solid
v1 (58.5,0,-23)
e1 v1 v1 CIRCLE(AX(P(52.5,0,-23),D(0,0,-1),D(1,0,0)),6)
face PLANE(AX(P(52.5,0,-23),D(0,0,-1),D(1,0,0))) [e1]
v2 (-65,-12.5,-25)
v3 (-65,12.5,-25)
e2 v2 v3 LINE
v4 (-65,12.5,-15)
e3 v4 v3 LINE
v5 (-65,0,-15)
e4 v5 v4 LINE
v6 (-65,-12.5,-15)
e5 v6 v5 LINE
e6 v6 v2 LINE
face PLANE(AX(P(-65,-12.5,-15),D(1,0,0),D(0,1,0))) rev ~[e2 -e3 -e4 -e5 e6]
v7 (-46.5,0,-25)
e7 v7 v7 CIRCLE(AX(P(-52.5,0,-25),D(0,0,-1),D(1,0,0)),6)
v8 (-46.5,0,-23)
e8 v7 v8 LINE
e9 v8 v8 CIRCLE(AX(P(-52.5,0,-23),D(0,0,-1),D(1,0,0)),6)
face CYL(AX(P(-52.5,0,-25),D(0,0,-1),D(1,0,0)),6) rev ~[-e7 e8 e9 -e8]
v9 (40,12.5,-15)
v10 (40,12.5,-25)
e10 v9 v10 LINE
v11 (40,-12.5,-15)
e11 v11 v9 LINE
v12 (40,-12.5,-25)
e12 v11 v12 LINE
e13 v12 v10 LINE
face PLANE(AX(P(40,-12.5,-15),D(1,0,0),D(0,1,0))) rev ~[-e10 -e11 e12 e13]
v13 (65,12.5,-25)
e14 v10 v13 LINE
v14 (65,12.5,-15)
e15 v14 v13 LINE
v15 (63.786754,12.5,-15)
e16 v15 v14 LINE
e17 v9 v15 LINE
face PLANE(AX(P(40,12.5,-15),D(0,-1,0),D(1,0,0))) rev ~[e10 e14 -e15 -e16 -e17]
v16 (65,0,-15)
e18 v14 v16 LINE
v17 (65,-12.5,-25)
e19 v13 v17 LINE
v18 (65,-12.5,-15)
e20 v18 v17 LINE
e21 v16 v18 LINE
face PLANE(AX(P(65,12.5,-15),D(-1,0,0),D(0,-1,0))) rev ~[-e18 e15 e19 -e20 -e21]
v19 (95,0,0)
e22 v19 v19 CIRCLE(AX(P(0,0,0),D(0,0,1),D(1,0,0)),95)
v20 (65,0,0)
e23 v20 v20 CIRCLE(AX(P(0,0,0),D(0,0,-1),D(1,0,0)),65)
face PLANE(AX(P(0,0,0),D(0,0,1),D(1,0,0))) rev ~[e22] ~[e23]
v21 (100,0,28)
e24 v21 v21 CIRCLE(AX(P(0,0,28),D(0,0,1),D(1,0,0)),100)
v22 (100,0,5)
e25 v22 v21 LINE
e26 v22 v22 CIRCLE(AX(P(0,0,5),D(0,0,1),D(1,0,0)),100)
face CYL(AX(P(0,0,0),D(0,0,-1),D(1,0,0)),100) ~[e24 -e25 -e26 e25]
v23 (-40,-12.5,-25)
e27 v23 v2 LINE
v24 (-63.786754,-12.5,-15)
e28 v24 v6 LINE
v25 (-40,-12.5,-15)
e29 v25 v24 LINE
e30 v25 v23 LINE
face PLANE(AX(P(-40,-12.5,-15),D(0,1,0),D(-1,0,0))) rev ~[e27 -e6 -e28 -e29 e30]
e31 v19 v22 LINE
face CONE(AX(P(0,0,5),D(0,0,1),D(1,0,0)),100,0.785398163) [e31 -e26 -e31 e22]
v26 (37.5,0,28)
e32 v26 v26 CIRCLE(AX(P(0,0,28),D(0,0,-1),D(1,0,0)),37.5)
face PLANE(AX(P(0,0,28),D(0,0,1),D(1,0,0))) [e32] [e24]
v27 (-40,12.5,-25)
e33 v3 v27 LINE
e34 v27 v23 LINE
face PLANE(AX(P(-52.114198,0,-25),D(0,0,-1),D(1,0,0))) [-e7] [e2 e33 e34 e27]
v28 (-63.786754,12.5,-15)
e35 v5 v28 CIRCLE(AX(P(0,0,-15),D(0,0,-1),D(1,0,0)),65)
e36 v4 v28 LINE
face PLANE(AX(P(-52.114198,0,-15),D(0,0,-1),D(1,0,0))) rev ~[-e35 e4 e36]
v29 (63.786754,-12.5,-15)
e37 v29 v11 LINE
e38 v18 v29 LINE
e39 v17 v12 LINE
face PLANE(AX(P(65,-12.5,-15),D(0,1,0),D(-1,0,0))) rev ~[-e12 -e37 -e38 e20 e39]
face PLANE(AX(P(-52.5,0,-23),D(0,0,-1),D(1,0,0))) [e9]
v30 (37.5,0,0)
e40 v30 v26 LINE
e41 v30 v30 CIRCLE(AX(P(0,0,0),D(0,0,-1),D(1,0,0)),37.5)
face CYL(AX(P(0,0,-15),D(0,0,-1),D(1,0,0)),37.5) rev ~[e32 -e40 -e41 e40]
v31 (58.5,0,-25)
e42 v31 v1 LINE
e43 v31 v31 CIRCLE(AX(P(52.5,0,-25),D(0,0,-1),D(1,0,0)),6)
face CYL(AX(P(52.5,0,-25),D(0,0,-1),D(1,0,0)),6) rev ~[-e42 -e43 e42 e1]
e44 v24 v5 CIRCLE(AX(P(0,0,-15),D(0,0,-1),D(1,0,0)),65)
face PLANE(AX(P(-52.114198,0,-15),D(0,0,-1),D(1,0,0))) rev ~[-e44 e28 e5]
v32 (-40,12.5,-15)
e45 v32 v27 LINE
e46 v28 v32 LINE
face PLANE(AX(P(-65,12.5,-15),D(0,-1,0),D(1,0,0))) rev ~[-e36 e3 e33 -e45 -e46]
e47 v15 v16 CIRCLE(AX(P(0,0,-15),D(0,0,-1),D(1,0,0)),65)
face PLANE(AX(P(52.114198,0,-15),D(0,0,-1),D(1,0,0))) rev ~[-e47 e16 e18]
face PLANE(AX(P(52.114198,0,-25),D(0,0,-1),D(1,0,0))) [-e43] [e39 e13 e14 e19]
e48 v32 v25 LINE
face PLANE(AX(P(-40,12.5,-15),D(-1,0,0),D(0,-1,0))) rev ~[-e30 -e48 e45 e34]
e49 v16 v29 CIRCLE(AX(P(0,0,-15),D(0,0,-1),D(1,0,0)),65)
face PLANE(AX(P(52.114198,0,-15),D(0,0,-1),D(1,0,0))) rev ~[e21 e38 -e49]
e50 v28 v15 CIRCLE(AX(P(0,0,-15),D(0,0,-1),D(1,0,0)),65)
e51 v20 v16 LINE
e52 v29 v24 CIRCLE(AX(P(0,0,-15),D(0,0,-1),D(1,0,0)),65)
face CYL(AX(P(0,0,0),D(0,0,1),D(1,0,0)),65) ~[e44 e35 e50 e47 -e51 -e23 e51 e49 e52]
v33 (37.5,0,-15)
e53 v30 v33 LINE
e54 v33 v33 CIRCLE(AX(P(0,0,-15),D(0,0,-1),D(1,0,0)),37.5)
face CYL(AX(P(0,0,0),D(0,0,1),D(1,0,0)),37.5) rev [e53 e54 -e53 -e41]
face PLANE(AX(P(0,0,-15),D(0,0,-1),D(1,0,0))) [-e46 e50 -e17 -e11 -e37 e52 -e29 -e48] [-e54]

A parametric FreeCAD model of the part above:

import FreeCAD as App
import Part
import Sketcher
from FreeCAD import Vector
Q = App.Units.Quantity


def edges_at(feature, points):
    """Names of the edges that pass closest to the given points."""
    edges = feature.Shape.Edges
    near = lambda p: min(range(len(edges)), key=lambda i: edges[i].distToShape(Part.Vertex(*p))[0])
    return sorted({f"Edge{near(p) + 1}" for p in points})

doc = App.newDocument("Part")
params = doc.addObject("Spreadsheet::Sheet", "Params")
for row, (alias, value) in enumerate([
    ("sketch1_diameter", "200 mm"),
    ("pad1_length", "28 mm"),
    ("sketch2_diameter", "130 mm"),
    ("sketch2_diameter2", "75 mm"),
    ("pad2_length", "15 mm"),
    ("sketch3_width", "25 mm"),
    ("pad3_length", "10 mm"),
    ("sketch4_diameter", "12 mm"),
    ("pocket1_length", "2 mm"),
    ("sketch5_diameter", "75 mm"),
    ("pocket2_length", "50 mm"),
    ("chamfer_size", "5 mm"),
], start=1):
    params.set(f"A{row}", alias)
    params.set(f"B{row}", "=" + value)
    params.setAlias(f"B{row}", alias)

body = doc.addObject("PartDesign::Body", "Body")

sketch1 = body.newObject("Sketcher::SketchObject", "Sketch")
sketch1.AttachmentSupport = (doc.getObject("XY_Plane"), [""])
sketch1.MapMode = "FlatFace"
sketch1.addGeometry(Part.Circle(Vector(0, 0, 0), Vector(0, 0, 1), 100), False)
sketch1.addConstraint(Sketcher.Constraint("Coincident", 0, 3, -1, 1))
sketch1.addConstraint(Sketcher.Constraint("Diameter", 0, Q("200 mm")))
sketch1.setExpression("Constraints[1]", "Params.sketch1_diameter")
pad1 = body.newObject("PartDesign::Pad", "Pad")
pad1.Profile = sketch1
pad1.setExpression("Length", "Params.pad1_length")

sketch2 = body.newObject("Sketcher::SketchObject", "Sketch001")
sketch2.AttachmentSupport = (doc.getObject("XY_Plane"), [""])
sketch2.MapMode = "FlatFace"
sketch2.addGeometry(Part.Circle(Vector(0, 0, 0), Vector(0, 0, 1), 65), False)
sketch2.addGeometry(Part.Circle(Vector(0, 0, 0), Vector(0, 0, 1), 37.5), False)
sketch2.addConstraint(Sketcher.Constraint("Coincident", 0, 3, -1, 1))
sketch2.addConstraint(Sketcher.Constraint("Coincident", 1, 3, -1, 1))
sketch2.addConstraint(Sketcher.Constraint("Diameter", 0, Q("130 mm")))
sketch2.addConstraint(Sketcher.Constraint("Diameter", 1, Q("75 mm")))
sketch2.setExpression("Constraints[2]", "Params.sketch2_diameter")
sketch2.setExpression("Constraints[3]", "Params.sketch2_diameter2")
pad2 = body.newObject("PartDesign::Pad", "Pad001")
pad2.Profile = sketch2
pad2.setExpression("Length", "Params.pad2_length")
pad2.Reversed = True

sketch3 = body.newObject("Sketcher::SketchObject", "Sketch002")
sketch3.AttachmentSupport = (doc.getObject("XY_Plane"), [""])
sketch3.MapMode = "FlatFace"
sketch3.AttachmentOffset = App.Placement(Vector(0, 0, -15), App.Rotation())
sketch3.addGeometry(Part.LineSegment(Vector(-40, 12.5, 0), Vector(-40, -12.5, 0)), False)
sketch3.addGeometry(Part.LineSegment(Vector(-40, -12.5, 0), Vector(-65, -12.5, 0)), False)
sketch3.addGeometry(Part.LineSegment(Vector(-65, -12.5, 0), Vector(-65, 12.5, 0)), False)
sketch3.addGeometry(Part.LineSegment(Vector(-65, 12.5, 0), Vector(-40, 12.5, 0)), False)
sketch3.addGeometry(Part.LineSegment(Vector(40, 12.5, 0), Vector(65, 12.5, 0)), False)
sketch3.addGeometry(Part.LineSegment(Vector(65, 12.5, 0), Vector(65, -12.5, 0)), False)
sketch3.addGeometry(Part.LineSegment(Vector(65, -12.5, 0), Vector(40, -12.5, 0)), False)
sketch3.addGeometry(Part.LineSegment(Vector(40, -12.5, 0), Vector(40, 12.5, 0)), False)
sketch3.addConstraint(Sketcher.Constraint("Coincident", 0, 2, 1, 1))
sketch3.addConstraint(Sketcher.Constraint("Coincident", 1, 2, 2, 1))
sketch3.addConstraint(Sketcher.Constraint("Coincident", 2, 2, 3, 1))
sketch3.addConstraint(Sketcher.Constraint("Coincident", 3, 2, 0, 1))
sketch3.addConstraint(Sketcher.Constraint("Coincident", 4, 2, 5, 1))
sketch3.addConstraint(Sketcher.Constraint("Coincident", 5, 2, 6, 1))
sketch3.addConstraint(Sketcher.Constraint("Coincident", 6, 2, 7, 1))
sketch3.addConstraint(Sketcher.Constraint("Coincident", 7, 2, 4, 1))
sketch3.addConstraint(Sketcher.Constraint("Vertical", 0))
sketch3.addConstraint(Sketcher.Constraint("Horizontal", 1))
sketch3.addConstraint(Sketcher.Constraint("Vertical", 2))
sketch3.addConstraint(Sketcher.Constraint("Horizontal", 3))
sketch3.addConstraint(Sketcher.Constraint("Horizontal", 4))
sketch3.addConstraint(Sketcher.Constraint("Vertical", 5))
sketch3.addConstraint(Sketcher.Constraint("Horizontal", 6))
sketch3.addConstraint(Sketcher.Constraint("Vertical", 7))
sketch3.addConstraint(Sketcher.Constraint("Symmetric", 1, 2, 4, 2, -1, 1))
sketch3.addConstraint(Sketcher.Constraint("Symmetric", 3, 2, 6, 2, -1, 1))
sketch3.addConstraint(Sketcher.Constraint("Horizontal", 3, 2, 4, 2))
sketch3.addConstraint(Sketcher.Constraint("Equal", 6, 0))
sketch3.addConstraint(Sketcher.Constraint("DistanceX", 1, 2, 1, 1, Q("25 mm")))
sketch3.addConstraint(Sketcher.Constraint("DistanceX", 0, 2, -1, 1, Q("40 mm")))
sketch3.setExpression("Constraints[20]", "Params.sketch3_width")
pad3 = body.newObject("PartDesign::Pad", "Pad002")
pad3.Profile = sketch3
pad3.setExpression("Length", "Params.pad3_length")
pad3.Reversed = True

sketch4 = body.newObject("Sketcher::SketchObject", "Sketch003")
sketch4.AttachmentSupport = (doc.getObject("XY_Plane"), [""])
sketch4.MapMode = "FlatFace"
sketch4.AttachmentOffset = App.Placement(Vector(0, 0, -25), App.Rotation())
sketch4.addGeometry(Part.Circle(Vector(52.5, 0, 0), Vector(0, 0, 1), 6), False)
sketch4.addGeometry(Part.Circle(Vector(-52.5, 0, 0), Vector(0, 0, 1), 6), False)
sketch4.addConstraint(Sketcher.Constraint("Equal", 0, 1))
sketch4.addConstraint(Sketcher.Constraint("Symmetric", 0, 3, 1, 3, -1, 1))
sketch4.addConstraint(Sketcher.Constraint("PointOnObject", 0, 3, -1))
sketch4.addConstraint(Sketcher.Constraint("Diameter", 0, Q("12 mm")))
sketch4.addConstraint(Sketcher.Constraint("DistanceX", 1, 3, 0, 3, Q("105 mm")))
sketch4.setExpression("Constraints[3]", "Params.sketch4_diameter")
pocket1 = body.newObject("PartDesign::Pocket", "Pocket")
pocket1.Profile = sketch4
pocket1.setExpression("Length", "Params.pocket1_length")
pocket1.Reversed = True

sketch5 = body.newObject("Sketcher::SketchObject", "Sketch004")
sketch5.AttachmentSupport = (doc.getObject("XY_Plane"), [""])
sketch5.MapMode = "FlatFace"
sketch5.AttachmentOffset = App.Placement(Vector(0, 0, -15), App.Rotation())
sketch5.addGeometry(Part.Circle(Vector(0, 0, 0), Vector(0, 0, 1), 37.5), False)
sketch5.addConstraint(Sketcher.Constraint("Coincident", 0, 3, -1, 1))
sketch5.addConstraint(Sketcher.Constraint("Diameter", 0, Q("75 mm")))
sketch5.setExpression("Constraints[1]", "Params.sketch5_diameter")
pocket2 = body.newObject("PartDesign::Pocket", "Pocket001")
pocket2.Profile = sketch5
pocket2.setExpression("Length", "Params.pocket2_length")
pocket2.Reversed = True
doc.recompute()

chamfer = body.newObject("PartDesign::Chamfer", "Chamfer")
chamfer.Base = (pocket2, edges_at(pocket2, [(-100, 0, 0)]))
chamfer.setExpression("Size", "Params.chamfer_size")

doc.recompute()
